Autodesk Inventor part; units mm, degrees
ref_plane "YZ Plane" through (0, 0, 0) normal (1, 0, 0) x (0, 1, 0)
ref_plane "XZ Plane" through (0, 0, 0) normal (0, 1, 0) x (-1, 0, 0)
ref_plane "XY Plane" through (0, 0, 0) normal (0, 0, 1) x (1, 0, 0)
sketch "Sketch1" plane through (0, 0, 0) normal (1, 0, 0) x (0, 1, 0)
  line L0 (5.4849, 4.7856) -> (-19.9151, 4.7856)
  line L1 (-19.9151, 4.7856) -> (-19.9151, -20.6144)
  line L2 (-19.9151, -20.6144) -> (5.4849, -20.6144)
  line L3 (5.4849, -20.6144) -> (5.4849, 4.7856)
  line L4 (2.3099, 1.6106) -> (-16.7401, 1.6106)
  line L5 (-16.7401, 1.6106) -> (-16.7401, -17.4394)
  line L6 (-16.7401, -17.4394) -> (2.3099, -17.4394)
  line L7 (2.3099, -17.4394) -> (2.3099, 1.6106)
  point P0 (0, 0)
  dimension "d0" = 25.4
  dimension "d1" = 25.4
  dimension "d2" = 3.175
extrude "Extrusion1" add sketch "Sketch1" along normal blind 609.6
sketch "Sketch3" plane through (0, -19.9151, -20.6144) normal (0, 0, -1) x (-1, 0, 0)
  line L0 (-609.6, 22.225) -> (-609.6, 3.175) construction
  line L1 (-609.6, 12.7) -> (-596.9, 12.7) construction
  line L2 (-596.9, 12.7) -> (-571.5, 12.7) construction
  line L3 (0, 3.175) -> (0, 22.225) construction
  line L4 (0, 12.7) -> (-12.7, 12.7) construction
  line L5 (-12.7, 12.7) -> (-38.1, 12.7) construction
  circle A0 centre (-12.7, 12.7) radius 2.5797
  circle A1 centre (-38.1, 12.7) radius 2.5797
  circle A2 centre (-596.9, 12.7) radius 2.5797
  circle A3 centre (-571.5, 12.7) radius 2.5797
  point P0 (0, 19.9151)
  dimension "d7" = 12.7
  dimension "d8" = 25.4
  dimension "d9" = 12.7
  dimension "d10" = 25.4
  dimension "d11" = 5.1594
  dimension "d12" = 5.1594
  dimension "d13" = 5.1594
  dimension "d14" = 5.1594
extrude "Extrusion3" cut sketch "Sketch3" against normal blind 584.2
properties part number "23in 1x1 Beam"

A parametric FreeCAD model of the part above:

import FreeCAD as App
import Part
import Sketcher
Q = App.Units.Quantity

doc = App.newDocument("Part")
body = doc.addObject("PartDesign::Body", "Body")

# Sketch on YZ plane
sketch1 = doc.addObject("Sketcher::SketchObject", "Sketch")
body.addObject(sketch1)
sketch1.AttachmentSupport = (doc.YZ_Plane, [""])
sketch1.MapMode = "FlatFace"
sketch1.addGeometry(Part.LineSegment(App.Vector(5.4849, -20.6144, 0), App.Vector(5.4849, 4.7856, 0)), False)
sketch1.addGeometry(Part.LineSegment(App.Vector(5.4849, 4.7856, 0), App.Vector(-19.9151, 4.7856, 0)), False)
sketch1.addGeometry(Part.LineSegment(App.Vector(-19.9151, 4.7856, 0), App.Vector(-19.9151, -20.6144, 0)), False)
sketch1.addGeometry(Part.LineSegment(App.Vector(-19.9151, -20.6144, 0), App.Vector(5.4849, -20.6144, 0)), False)
sketch1.addGeometry(Part.LineSegment(App.Vector(-16.7401, 1.6106, 0), App.Vector(2.3099, 1.6106, 0)), False)
sketch1.addGeometry(Part.LineSegment(App.Vector(2.3099, 1.6106, 0), App.Vector(2.3099, -17.4394, 0)), False)
sketch1.addGeometry(Part.LineSegment(App.Vector(2.3099, -17.4394, 0), App.Vector(-16.7401, -17.4394, 0)), False)
sketch1.addGeometry(Part.LineSegment(App.Vector(-16.7401, -17.4394, 0), App.Vector(-16.7401, 1.6106, 0)), False)
sketch1.addConstraint(Sketcher.Constraint("Coincident", 0, 2, 1, 1))
sketch1.addConstraint(Sketcher.Constraint("Coincident", 1, 2, 2, 1))
sketch1.addConstraint(Sketcher.Constraint("Coincident", 2, 2, 3, 1))
sketch1.addConstraint(Sketcher.Constraint("Coincident", 3, 2, 0, 1))
sketch1.addConstraint(Sketcher.Constraint("Coincident", 4, 2, 5, 1))
sketch1.addConstraint(Sketcher.Constraint("Coincident", 5, 2, 6, 1))
sketch1.addConstraint(Sketcher.Constraint("Coincident", 6, 2, 7, 1))
sketch1.addConstraint(Sketcher.Constraint("Coincident", 7, 2, 4, 1))
sketch1.addConstraint(Sketcher.Constraint("Vertical", 0))
sketch1.addConstraint(Sketcher.Constraint("Horizontal", 1))
sketch1.addConstraint(Sketcher.Constraint("Vertical", 2))
sketch1.addConstraint(Sketcher.Constraint("Horizontal", 3))
sketch1.addConstraint(Sketcher.Constraint("Horizontal", 4))
sketch1.addConstraint(Sketcher.Constraint("Vertical", 5))
sketch1.addConstraint(Sketcher.Constraint("Horizontal", 6))
sketch1.addConstraint(Sketcher.Constraint("Vertical", 7))
sketch1.addConstraint(Sketcher.Constraint("Equal", 3, 0))
sketch1.addConstraint(Sketcher.Constraint("Equal", 6, 5))
sketch1.addConstraint(Sketcher.Constraint("DistanceX", 1, 2, 1, 1, Q("1 in")))
sketch1.addConstraint(Sketcher.Constraint("DistanceX", 4, 2, 0, 2, Q("0.125 in")))
sketch1.addConstraint(Sketcher.Constraint("DistanceY", 4, 2, 0, 2, Q("0.125 in")))
sketch1.addConstraint(Sketcher.Constraint("DistanceY", 3, 2, 5, 2, Q("0.125 in")))
sketch1.addConstraint(Sketcher.Constraint("DistanceY", -1, 1, 0, 2, Q("0.1884 in")))
sketch1.addConstraint(Sketcher.Constraint("DistanceX", -1, 1, 0, 2, 5.485))
pad1 = doc.addObject("PartDesign::Pad", "Pad")
body.addObject(pad1)
pad1.Profile = sketch1
pad1.Length = Q("24 in")

# Sketch on XY plane
sketch2 = doc.addObject("Sketcher::SketchObject", "Sketch001")
body.addObject(sketch2)
sketch2.AttachmentSupport = (doc.XY_Plane, [""])
sketch2.MapMode = "FlatFace"
sketch2.AttachmentOffset = App.Placement(App.Vector(0, 0, -0.8115906 * 25.4), App.Rotation())
sketch2.addGeometry(Part.Circle(App.Vector(12.7, -7.2151, 0), App.Vector(0, 0, 1), 2.5797), False)
sketch2.addGeometry(Part.Circle(App.Vector(38.1, -7.2151, 0), App.Vector(0, 0, 1), 2.5797), False)
sketch2.addGeometry(Part.Circle(App.Vector(596.9, -7.2151, 0), App.Vector(0, 0, 1), 2.5797), False)
sketch2.addGeometry(Part.Circle(App.Vector(571.5, -7.2151, 0), App.Vector(0, 0, 1), 2.5797), False)
sketch2.addConstraint(Sketcher.Constraint("Equal", 0, 1))
sketch2.addConstraint(Sketcher.Constraint("Equal", 1, 2))
sketch2.addConstraint(Sketcher.Constraint("Equal", 2, 3))
sketch2.addConstraint(Sketcher.Constraint("Horizontal", 0, 3, 1, 3))
sketch2.addConstraint(Sketcher.Constraint("Horizontal", 1, 3, 2, 3))
sketch2.addConstraint(Sketcher.Constraint("Horizontal", 2, 3, 3, 3))
sketch2.addConstraint(Sketcher.Constraint("Diameter", 0, Q("0.203126 in")))
sketch2.addConstraint(Sketcher.Constraint("DistanceX", 0, 3, 1, 3, Q("1 in")))
sketch2.addConstraint(Sketcher.Constraint("DistanceX", 3, 3, 2, 3, Q("1 in")))
sketch2.addConstraint(Sketcher.Constraint("DistanceX", -1, 1, 0, 3, Q("0.5 in")))
sketch2.addConstraint(Sketcher.Constraint("DistanceX", 1, 3, 2, 3, Q("22 in")))
sketch2.addConstraint(Sketcher.Constraint("DistanceY", 0, 3, -1, 1, 7.215))
pocket1 = doc.addObject("PartDesign::Pocket", "Pocket")
body.addObject(pocket1)
pocket1.Profile = sketch2
pocket1.Length = Q("23 in")
pocket1.Reversed = True

doc.recompute()
